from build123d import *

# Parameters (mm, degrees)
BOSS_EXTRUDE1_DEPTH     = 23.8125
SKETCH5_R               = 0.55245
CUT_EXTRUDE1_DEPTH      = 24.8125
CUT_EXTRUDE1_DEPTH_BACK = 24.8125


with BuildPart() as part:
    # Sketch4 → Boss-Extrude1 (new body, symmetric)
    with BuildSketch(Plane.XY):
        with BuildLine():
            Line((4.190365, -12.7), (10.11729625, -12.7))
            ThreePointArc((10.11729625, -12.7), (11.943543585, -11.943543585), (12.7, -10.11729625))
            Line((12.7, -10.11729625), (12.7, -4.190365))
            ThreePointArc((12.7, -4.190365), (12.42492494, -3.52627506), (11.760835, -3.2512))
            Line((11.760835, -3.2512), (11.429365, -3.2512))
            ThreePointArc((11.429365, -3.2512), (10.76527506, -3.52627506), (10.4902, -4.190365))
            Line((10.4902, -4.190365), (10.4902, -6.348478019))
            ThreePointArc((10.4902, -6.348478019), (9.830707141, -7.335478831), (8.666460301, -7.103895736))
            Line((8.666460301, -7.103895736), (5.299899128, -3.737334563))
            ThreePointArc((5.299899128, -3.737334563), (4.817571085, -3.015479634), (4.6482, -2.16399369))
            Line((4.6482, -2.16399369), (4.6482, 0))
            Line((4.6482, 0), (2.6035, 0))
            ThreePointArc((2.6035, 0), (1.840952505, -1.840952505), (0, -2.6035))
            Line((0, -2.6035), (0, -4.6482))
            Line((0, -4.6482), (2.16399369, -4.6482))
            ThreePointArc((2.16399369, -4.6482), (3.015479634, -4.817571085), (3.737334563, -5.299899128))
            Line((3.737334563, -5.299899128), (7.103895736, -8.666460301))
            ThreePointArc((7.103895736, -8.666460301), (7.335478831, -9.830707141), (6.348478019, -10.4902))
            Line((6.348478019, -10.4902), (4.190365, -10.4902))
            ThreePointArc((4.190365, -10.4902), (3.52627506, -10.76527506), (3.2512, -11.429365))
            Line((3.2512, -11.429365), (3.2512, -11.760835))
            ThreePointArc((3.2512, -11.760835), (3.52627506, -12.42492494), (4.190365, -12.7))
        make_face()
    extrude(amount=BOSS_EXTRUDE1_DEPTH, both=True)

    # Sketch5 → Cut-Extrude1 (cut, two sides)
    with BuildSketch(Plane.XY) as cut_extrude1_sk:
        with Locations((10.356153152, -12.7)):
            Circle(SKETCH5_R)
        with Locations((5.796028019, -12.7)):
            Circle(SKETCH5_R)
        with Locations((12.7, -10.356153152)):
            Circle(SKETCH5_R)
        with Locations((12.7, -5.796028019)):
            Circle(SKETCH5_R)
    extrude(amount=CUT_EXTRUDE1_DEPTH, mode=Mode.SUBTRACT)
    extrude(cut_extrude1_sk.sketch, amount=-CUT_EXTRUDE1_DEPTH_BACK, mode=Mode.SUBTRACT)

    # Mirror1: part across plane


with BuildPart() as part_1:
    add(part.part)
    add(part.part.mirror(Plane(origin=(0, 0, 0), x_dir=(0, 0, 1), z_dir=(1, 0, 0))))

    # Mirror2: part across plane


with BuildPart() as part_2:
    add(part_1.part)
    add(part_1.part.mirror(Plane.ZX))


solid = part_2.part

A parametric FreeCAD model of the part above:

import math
import FreeCAD as App
import Part
import Sketcher
from FreeCAD import Vector
Q = App.Units.Quantity

doc = App.newDocument("Part")
body = doc.addObject("PartDesign::Body", "Body")

# Sketch on XY plane
sketch1 = body.newObject("Sketcher::SketchObject", "Sketch")
sketch1.AttachmentSupport = (doc.getObject("XY_Plane"), [""])
sketch1.MapMode = "FlatFace"
sketch1.addGeometry(Part.LineSegment(Vector(4.19, -12.7, 0), Vector(10.12, -12.7, 0)), False)
sketch1.addGeometry(Part.ArcOfCircle(Part.Circle(Vector(10.12, -10.12, 0), Vector(0, 0, 1), 2.58), math.radians(-90), math.radians(0)), False)
sketch1.addGeometry(Part.LineSegment(Vector(12.7, -10.12, 0), Vector(12.7, -4.19, 0)), False)
sketch1.addGeometry(Part.ArcOfCircle(Part.Circle(Vector(11.76, -4.19, 0), Vector(0, 0, 1), 0.94), math.radians(0), math.radians(90)), False)
sketch1.addGeometry(Part.LineSegment(Vector(11.76, -3.25, 0), Vector(11.43, -3.25, 0)), False)
sketch1.addGeometry(Part.ArcOfCircle(Part.Circle(Vector(11.43, -4.19, 0), Vector(0, 0, 1), 0.94), math.radians(90), math.radians(180)), False)
sketch1.addGeometry(Part.LineSegment(Vector(10.49, -4.19, 0), Vector(10.49, -6.35, 0)), False)
sketch1.addGeometry(Part.ArcOfCircle(Part.Circle(Vector(9.42, -6.35, 0), Vector(0, 0, 1), 1.07), math.radians(-135), math.radians(0)), False)
sketch1.addGeometry(Part.LineSegment(Vector(8.67, -7.1, 0), Vector(5.3, -3.74, 0)), False)
sketch1.addGeometry(Part.ArcOfCircle(Part.Circle(Vector(6.87, -2.16, 0), Vector(0, 0, 1), 2.23), math.radians(-180), math.radians(-135)), False)
sketch1.addGeometry(Part.LineSegment(Vector(4.65, -2.16, 0), Vector(4.65, 0, 0)), False)
sketch1.addGeometry(Part.LineSegment(Vector(4.65, 0, 0), Vector(2.6, 0, 0)), False)
sketch1.addGeometry(Part.ArcOfCircle(Part.Circle(Vector(0, 0, 0), Vector(0, 0, 1), 2.6), math.radians(-90), math.radians(0)), False)
sketch1.addGeometry(Part.LineSegment(Vector(0, -2.6, 0), Vector(0, -4.65, 0)), False)
sketch1.addGeometry(Part.LineSegment(Vector(0, -4.65, 0), Vector(2.16, -4.65, 0)), False)
sketch1.addGeometry(Part.ArcOfCircle(Part.Circle(Vector(2.16, -6.87, 0), Vector(0, 0, 1), 2.23), math.radians(45), math.radians(90)), False)
sketch1.addGeometry(Part.LineSegment(Vector(3.74, -5.3, 0), Vector(7.1, -8.67, 0)), False)
sketch1.addGeometry(Part.ArcOfCircle(Part.Circle(Vector(6.35, -9.42, 0), Vector(0, 0, 1), 1.07), math.radians(-90), math.radians(45)), False)
sketch1.addGeometry(Part.LineSegment(Vector(6.35, -10.49, 0), Vector(4.19, -10.49, 0)), False)
sketch1.addGeometry(Part.ArcOfCircle(Part.Circle(Vector(4.19, -11.43, 0), Vector(0, 0, 1), 0.94), math.radians(90), math.radians(180)), False)
sketch1.addGeometry(Part.LineSegment(Vector(3.25, -11.43, 0), Vector(3.25, -11.76, 0)), False)
sketch1.addGeometry(Part.ArcOfCircle(Part.Circle(Vector(4.19, -11.76, 0), Vector(0, 0, 1), 0.94), math.radians(-180), math.radians(-90)), False)
sketch1.addConstraint(Sketcher.Constraint("Tangent", 0, 2, 1, 1))
sketch1.addConstraint(Sketcher.Constraint("Tangent", 1, 2, 2, 1))
sketch1.addConstraint(Sketcher.Constraint("Tangent", 2, 2, 3, 1))
sketch1.addConstraint(Sketcher.Constraint("Tangent", 3, 2, 4, 1))
sketch1.addConstraint(Sketcher.Constraint("Tangent", 4, 2, 5, 1))
sketch1.addConstraint(Sketcher.Constraint("Tangent", 5, 2, 6, 1))
sketch1.addConstraint(Sketcher.Constraint("Tangent", 6, 2, 7, 2))
sketch1.addConstraint(Sketcher.Constraint("Tangent", 7, 1, 8, 1))
sketch1.addConstraint(Sketcher.Constraint("Tangent", 8, 2, 9, 2))
sketch1.addConstraint(Sketcher.Constraint("Tangent", 9, 1, 10, 1))
sketch1.addConstraint(Sketcher.Constraint("Coincident", 10, 2, 11, 1))
sketch1.addConstraint(Sketcher.Constraint("Coincident", 11, 2, 12, 2))
sketch1.addConstraint(Sketcher.Constraint("Coincident", 12, 1, 13, 1))
sketch1.addConstraint(Sketcher.Constraint("Coincident", 13, 2, 14, 1))
sketch1.addConstraint(Sketcher.Constraint("Tangent", 14, 2, 15, 2))
sketch1.addConstraint(Sketcher.Constraint("Tangent", 15, 1, 16, 1))
sketch1.addConstraint(Sketcher.Constraint("Tangent", 16, 2, 17, 2))
sketch1.addConstraint(Sketcher.Constraint("Tangent", 17, 1, 18, 1))
sketch1.addConstraint(Sketcher.Constraint("Tangent", 18, 2, 19, 1))
sketch1.addConstraint(Sketcher.Constraint("Tangent", 19, 2, 20, 1))
sketch1.addConstraint(Sketcher.Constraint("Tangent", 20, 2, 21, 1))
sketch1.addConstraint(Sketcher.Constraint("Tangent", 21, 2, 0, 1))
sketch1.addConstraint(Sketcher.Constraint("Horizontal", 0))
sketch1.addConstraint(Sketcher.Constraint("Vertical", 2))
sketch1.addConstraint(Sketcher.Constraint("Horizontal", 4))
sketch1.addConstraint(Sketcher.Constraint("Vertical", 6))
sketch1.addConstraint(Sketcher.Constraint("Vertical", 10))
sketch1.addConstraint(Sketcher.Constraint("Horizontal", 11))
sketch1.addConstraint(Sketcher.Constraint("Vertical", 13))
sketch1.addConstraint(Sketcher.Constraint("Horizontal", 14))
sketch1.addConstraint(Sketcher.Constraint("Horizontal", 18))
sketch1.addConstraint(Sketcher.Constraint("Vertical", 20))
sketch1.addConstraint(Sketcher.Constraint("Coincident", 12, 3, -1, 1))
sketch1.addConstraint(Sketcher.Constraint("Equal", 3, 5))
sketch1.addConstraint(Sketcher.Constraint("Equal", 9, 15))
sketch1.addConstraint(Sketcher.Constraint("Equal", 7, 17))
sketch1.addConstraint(Sketcher.Constraint("Equal", 5, 19))
sketch1.addConstraint(Sketcher.Constraint("Equal", 19, 21))
sketch1.addConstraint(Sketcher.Constraint("PointOnObject", 10, 2, -1))
sketch1.addConstraint(Sketcher.Constraint("PointOnObject", 12, 1, -2))
sketch1.addConstraint(Sketcher.Constraint("Parallel", 8, 16))
sketch1.addConstraint(Sketcher.Constraint("Equal", 0, 2))
sketch1.addConstraint(Sketcher.Constraint("Equal", 18, 6))
sketch1.addConstraint(Sketcher.Constraint("Equal", 14, 10))
sketch1.addConstraint(Sketcher.Constraint("Equal", 11, 13))
sketch1.addConstraint(Sketcher.Constraint("Equal", 4, 20))
sketch1.addConstraint(Sketcher.Constraint("Equal", 8, 16))
sketch1.addConstraint(Sketcher.Constraint("DistanceY", 0, 2, -1, 1, Q("0.5 in")))
sketch1.addConstraint(Sketcher.Constraint("Radius", 9, Q("0.0876 in")))
sketch1.addConstraint(Sketcher.Constraint("Radius", 12, Q("0.1025 in")))
sketch1.addConstraint(Sketcher.Constraint("DistanceX", 9, 1, 5, 2, Q("0.23 in")))
sketch1.addConstraint(Sketcher.Constraint("DistanceX", 11, 2, 11, 1, Q("0.0805 in")))
sketch1.addConstraint(Sketcher.Constraint("DistanceY", 3, 2, -1, 1, Q("0.128 in")))
sketch1.addConstraint(Sketcher.Constraint("Radius", 7, 1.068322))
sketch1.addConstraint(Sketcher.Constraint("DistanceX", 17, 3, 7, 3, Q("0.121 in")))
sketch1.addConstraint(Sketcher.Constraint("Radius", 1, 2.582704))
sketch1.addConstraint(Sketcher.Constraint("Radius", 3, 0.939165))
pad1 = body.newObject("PartDesign::Pad", "Pad")
pad1.Profile = sketch1
pad1.Length = Q("1.875 in")
pad1.Midplane = True

# Sketch on XY plane
sketch2 = body.newObject("Sketcher::SketchObject", "Sketch001")
sketch2.AttachmentSupport = (doc.getObject("XY_Plane"), [""])
sketch2.MapMode = "FlatFace"
sketch2.addGeometry(Part.Circle(Vector(10.4, -12.7, 0), Vector(0, 0, 1), 0.6), False)
sketch2.addGeometry(Part.Circle(Vector(5.8, -12.7, 0), Vector(0, 0, 1), 0.6), False)
sketch2.addGeometry(Part.Circle(Vector(12.7, -10.4, 0), Vector(0, 0, 1), 0.6), False)
sketch2.addGeometry(Part.Circle(Vector(12.7, -5.8, 0), Vector(0, 0, 1), 0.6), False)
sketch2.addConstraint(Sketcher.Constraint("Equal", 0, 1))
sketch2.addConstraint(Sketcher.Constraint("Equal", 1, 2))
sketch2.addConstraint(Sketcher.Constraint("Equal", 2, 3))
sketch2.addConstraint(Sketcher.Constraint("Horizontal", 0, 3, 1, 3))
sketch2.addConstraint(Sketcher.Constraint("Vertical", 2, 3, 3, 3))
sketch2.addConstraint(Sketcher.Constraint("Diameter", 0, Q("0.0435 in")))
sketch2.addConstraint(Sketcher.Constraint("DistanceY", 0, 3, -1, 1, Q("0.5 in")))
sketch2.addConstraint(Sketcher.Constraint("DistanceX", -1, 1, 2, 3, Q("0.5 in")))
sketch2.addConstraint(Sketcher.Constraint("DistanceX", -1, 1, 1, 3, 5.796028))
sketch2.addConstraint(Sketcher.Constraint("DistanceY", 3, 3, -1, 1, 5.796028))
sketch2.addConstraint(Sketcher.Constraint("DistanceX", -1, 1, 0, 3, 10.356153))
sketch2.addConstraint(Sketcher.Constraint("DistanceY", 2, 3, -1, 1, 10.356153))
pocket1 = body.newObject("PartDesign::Pocket", "Pocket")
pocket1.Profile = sketch2
pocket1.Type = "ThroughAll"
pocket1.Midplane = True
body2 = doc.addObject("PartDesign::Body", "Body001")
doc.recompute()

body2.BaseFeature = body
doc.recompute()

mirroring = doc.addObject("Part::Mirroring", "Mirroring")
mirroring.Source = body
mirroring.Base = Vector(0, 0, 0)
mirroring.Normal = Vector(1, 0, 0)
body3 = doc.addObject("PartDesign::Body", "Body002")
body3.BaseFeature = mirroring
boolean = body2.newObject("PartDesign::Boolean", "Boolean")
boolean.Type = "Fuse"
boolean.addObjects([body3])
doc.recompute()
body4 = doc.addObject("PartDesign::Body", "Body003")
doc.recompute()

body4.BaseFeature = body2
doc.recompute()

mirroring2 = doc.addObject("Part::Mirroring", "Mirroring001")
mirroring2.Source = body2
mirroring2.Base = Vector(0, 0, 0)
mirroring2.Normal = Vector(0, 1, 0)
body5 = doc.addObject("PartDesign::Body", "Body004")
body5.BaseFeature = mirroring2
boolean2 = body4.newObject("PartDesign::Boolean", "Boolean001")
boolean2.Type = "Fuse"
boolean2.addObjects([body5])
doc.recompute()
mirroring.Visibility = False
mirroring2.Visibility = False

doc.recompute()
